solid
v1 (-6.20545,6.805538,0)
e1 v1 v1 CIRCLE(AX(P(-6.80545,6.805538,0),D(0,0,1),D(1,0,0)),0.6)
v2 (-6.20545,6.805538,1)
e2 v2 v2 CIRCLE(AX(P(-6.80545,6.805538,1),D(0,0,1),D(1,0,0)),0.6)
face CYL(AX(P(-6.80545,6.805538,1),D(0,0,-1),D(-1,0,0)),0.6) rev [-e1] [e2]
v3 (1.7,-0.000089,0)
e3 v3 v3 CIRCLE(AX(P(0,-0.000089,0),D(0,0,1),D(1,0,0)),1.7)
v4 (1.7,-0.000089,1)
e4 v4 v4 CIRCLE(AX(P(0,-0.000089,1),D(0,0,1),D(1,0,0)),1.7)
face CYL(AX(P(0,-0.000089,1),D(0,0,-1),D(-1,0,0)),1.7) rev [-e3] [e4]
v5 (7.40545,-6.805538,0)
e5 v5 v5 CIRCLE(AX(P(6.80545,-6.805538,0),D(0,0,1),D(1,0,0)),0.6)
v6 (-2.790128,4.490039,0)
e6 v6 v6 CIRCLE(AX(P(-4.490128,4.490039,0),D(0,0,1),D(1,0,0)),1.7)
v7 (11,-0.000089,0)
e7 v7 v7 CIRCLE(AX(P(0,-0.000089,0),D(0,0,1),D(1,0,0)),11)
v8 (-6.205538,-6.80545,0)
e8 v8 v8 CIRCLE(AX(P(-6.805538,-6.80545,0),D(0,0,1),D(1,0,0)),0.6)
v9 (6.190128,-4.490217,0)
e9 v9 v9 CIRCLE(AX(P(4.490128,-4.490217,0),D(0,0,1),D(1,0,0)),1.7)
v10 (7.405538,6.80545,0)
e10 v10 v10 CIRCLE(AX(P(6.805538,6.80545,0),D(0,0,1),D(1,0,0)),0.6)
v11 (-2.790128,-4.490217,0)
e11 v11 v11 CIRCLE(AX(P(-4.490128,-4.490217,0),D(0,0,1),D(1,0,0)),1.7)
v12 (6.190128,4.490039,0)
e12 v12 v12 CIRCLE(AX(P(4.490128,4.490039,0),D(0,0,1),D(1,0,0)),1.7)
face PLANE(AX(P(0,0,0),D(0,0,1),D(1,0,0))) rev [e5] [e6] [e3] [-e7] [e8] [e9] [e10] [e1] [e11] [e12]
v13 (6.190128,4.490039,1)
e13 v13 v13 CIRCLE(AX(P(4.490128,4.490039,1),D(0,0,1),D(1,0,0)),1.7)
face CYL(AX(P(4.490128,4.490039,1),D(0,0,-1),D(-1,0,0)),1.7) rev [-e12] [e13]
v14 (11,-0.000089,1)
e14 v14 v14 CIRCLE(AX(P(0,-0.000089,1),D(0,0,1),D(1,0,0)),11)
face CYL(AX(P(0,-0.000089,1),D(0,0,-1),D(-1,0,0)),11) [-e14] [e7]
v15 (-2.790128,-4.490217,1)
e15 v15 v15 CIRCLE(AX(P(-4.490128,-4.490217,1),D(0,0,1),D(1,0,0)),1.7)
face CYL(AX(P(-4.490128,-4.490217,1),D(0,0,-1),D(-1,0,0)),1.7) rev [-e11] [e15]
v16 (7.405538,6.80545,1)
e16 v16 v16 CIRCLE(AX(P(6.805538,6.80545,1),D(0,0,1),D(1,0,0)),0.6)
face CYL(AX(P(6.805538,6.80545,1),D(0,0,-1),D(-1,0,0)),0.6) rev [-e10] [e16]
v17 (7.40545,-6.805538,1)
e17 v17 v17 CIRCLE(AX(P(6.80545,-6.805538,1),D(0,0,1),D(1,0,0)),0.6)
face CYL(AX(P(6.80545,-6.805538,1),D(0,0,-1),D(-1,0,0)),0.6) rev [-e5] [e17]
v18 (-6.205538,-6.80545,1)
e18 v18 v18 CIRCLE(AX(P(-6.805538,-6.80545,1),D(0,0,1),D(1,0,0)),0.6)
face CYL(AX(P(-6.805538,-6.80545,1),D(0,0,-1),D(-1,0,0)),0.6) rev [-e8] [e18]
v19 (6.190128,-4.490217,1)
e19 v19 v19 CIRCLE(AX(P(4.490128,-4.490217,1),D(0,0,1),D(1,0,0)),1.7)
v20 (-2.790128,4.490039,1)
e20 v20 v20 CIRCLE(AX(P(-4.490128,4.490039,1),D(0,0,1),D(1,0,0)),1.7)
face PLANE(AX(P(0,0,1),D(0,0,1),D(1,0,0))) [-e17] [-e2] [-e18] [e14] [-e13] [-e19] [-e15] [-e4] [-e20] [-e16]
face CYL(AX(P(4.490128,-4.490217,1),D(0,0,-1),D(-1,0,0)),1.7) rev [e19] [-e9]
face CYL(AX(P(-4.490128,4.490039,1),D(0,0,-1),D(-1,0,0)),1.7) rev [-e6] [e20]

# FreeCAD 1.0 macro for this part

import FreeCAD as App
import Part
import Sketcher
from FreeCAD import Vector
Q = App.Units.Quantity

doc = App.newDocument("Part")
params = doc.addObject("Spreadsheet::Sheet", "Params")
for row, (alias, value) in enumerate([
    ("sketch1_diameter", "22 mm"),
    ("sketch1_diameter2", "1.2 mm"),
    ("sketch1_diameter3", "3.4 mm"),
    ("pad1_length", "1 mm"),
], start=1):
    params.set(f"A{row}", alias)
    params.set(f"B{row}", "=" + value)
    params.setAlias(f"B{row}", alias)

body = doc.addObject("PartDesign::Body", "Body")

sketch1 = body.newObject("Sketcher::SketchObject", "Sketch")
sketch1.AttachmentSupport = (doc.getObject("XY_Plane"), [""])
sketch1.MapMode = "FlatFace"
sketch1.addGeometry([
    Part.Circle(Vector(0, 0, 0), Vector(0, 0, 1), 11),
    Part.Circle(Vector(-6.8, -6.8, 0), Vector(0, 0, 1), 0.6),
    Part.Circle(Vector(-4.5, -4.5, 0), Vector(0, 0, 1), 1.7),
    Part.Circle(Vector(0, 0, 0), Vector(0, 0, 1), 1.7),
    Part.Circle(Vector(6.8, -6.8, 0), Vector(0, 0, 1), 0.6),
    Part.Circle(Vector(4.5, -4.5, 0), Vector(0, 0, 1), 1.7),
    Part.Circle(Vector(-4.5, 4.5, 0), Vector(0, 0, 1), 1.7),
    Part.Circle(Vector(-6.8, 6.8, 0), Vector(0, 0, 1), 0.6),
    Part.Circle(Vector(4.5, 4.5, 0), Vector(0, 0, 1), 1.7),
    Part.Circle(Vector(6.8, 6.8, 0), Vector(0, 0, 1), 0.6),
], False)
sketch1.addConstraint([
    Sketcher.Constraint("Coincident", 3, 3, 0, 3),
    Sketcher.Constraint("Equal", 2, 3),
    Sketcher.Constraint("Equal", 1, 4),
    Sketcher.Constraint("Equal", 3, 5),
    Sketcher.Constraint("Equal", 5, 6),
    Sketcher.Constraint("Equal", 4, 7),
    Sketcher.Constraint("Equal", 6, 8),
    Sketcher.Constraint("Equal", 7, 9),
    Sketcher.Constraint("Symmetric", 4, 3, 7, 3, -1, 1),
    Sketcher.Constraint("Symmetric", 1, 3, 9, 3, -1, 1),
    Sketcher.Constraint("Symmetric", 2, 3, 5, 3, -2),
    Sketcher.Constraint("Symmetric", 6, 3, 8, 3, -2),
    Sketcher.Constraint("PointOnObject", 0, 3, -2),
    Sketcher.Constraint("Vertical", 2, 3, 6, 3),
    Sketcher.Constraint("Diameter", 0, Q("22 mm")),
    Sketcher.Constraint("Diameter", 1, Q("1.2 mm")),
    Sketcher.Constraint("Diameter", 2, Q("3.4 mm")),
    Sketcher.Constraint("DistanceY", 6, 3, 7, 3, Q("2.315499 mm")),
    Sketcher.Constraint("DistanceX", 1, 3, -1, 1, Q("6.805538 mm")),
    Sketcher.Constraint("DistanceY", 1, 3, -1, 1, Q("6.80545 mm")),
    Sketcher.Constraint("DistanceX", 2, 3, -1, 1, Q("4.490128 mm")),
    Sketcher.Constraint("DistanceX", -1, 1, 4, 3, Q("6.80545 mm")),
    Sketcher.Constraint("DistanceY", 4, 3, -1, 1, Q("6.805538 mm")),
    Sketcher.Constraint("DistanceY", 1, 3, 0, 3, Q("6.805361 mm")),
    Sketcher.Constraint("DistanceY", 2, 3, 0, 3, Q("4.490128 mm")),
])
sketch1.setExpression("Constraints[14]", "Params.sketch1_diameter")
sketch1.setExpression("Constraints[15]", "Params.sketch1_diameter2")
sketch1.setExpression("Constraints[16]", "Params.sketch1_diameter3")
pad1 = body.newObject("PartDesign::Pad", "Pad")
pad1.Profile = sketch1
pad1.setExpression("Length", "Params.pad1_length")

doc.recompute()
